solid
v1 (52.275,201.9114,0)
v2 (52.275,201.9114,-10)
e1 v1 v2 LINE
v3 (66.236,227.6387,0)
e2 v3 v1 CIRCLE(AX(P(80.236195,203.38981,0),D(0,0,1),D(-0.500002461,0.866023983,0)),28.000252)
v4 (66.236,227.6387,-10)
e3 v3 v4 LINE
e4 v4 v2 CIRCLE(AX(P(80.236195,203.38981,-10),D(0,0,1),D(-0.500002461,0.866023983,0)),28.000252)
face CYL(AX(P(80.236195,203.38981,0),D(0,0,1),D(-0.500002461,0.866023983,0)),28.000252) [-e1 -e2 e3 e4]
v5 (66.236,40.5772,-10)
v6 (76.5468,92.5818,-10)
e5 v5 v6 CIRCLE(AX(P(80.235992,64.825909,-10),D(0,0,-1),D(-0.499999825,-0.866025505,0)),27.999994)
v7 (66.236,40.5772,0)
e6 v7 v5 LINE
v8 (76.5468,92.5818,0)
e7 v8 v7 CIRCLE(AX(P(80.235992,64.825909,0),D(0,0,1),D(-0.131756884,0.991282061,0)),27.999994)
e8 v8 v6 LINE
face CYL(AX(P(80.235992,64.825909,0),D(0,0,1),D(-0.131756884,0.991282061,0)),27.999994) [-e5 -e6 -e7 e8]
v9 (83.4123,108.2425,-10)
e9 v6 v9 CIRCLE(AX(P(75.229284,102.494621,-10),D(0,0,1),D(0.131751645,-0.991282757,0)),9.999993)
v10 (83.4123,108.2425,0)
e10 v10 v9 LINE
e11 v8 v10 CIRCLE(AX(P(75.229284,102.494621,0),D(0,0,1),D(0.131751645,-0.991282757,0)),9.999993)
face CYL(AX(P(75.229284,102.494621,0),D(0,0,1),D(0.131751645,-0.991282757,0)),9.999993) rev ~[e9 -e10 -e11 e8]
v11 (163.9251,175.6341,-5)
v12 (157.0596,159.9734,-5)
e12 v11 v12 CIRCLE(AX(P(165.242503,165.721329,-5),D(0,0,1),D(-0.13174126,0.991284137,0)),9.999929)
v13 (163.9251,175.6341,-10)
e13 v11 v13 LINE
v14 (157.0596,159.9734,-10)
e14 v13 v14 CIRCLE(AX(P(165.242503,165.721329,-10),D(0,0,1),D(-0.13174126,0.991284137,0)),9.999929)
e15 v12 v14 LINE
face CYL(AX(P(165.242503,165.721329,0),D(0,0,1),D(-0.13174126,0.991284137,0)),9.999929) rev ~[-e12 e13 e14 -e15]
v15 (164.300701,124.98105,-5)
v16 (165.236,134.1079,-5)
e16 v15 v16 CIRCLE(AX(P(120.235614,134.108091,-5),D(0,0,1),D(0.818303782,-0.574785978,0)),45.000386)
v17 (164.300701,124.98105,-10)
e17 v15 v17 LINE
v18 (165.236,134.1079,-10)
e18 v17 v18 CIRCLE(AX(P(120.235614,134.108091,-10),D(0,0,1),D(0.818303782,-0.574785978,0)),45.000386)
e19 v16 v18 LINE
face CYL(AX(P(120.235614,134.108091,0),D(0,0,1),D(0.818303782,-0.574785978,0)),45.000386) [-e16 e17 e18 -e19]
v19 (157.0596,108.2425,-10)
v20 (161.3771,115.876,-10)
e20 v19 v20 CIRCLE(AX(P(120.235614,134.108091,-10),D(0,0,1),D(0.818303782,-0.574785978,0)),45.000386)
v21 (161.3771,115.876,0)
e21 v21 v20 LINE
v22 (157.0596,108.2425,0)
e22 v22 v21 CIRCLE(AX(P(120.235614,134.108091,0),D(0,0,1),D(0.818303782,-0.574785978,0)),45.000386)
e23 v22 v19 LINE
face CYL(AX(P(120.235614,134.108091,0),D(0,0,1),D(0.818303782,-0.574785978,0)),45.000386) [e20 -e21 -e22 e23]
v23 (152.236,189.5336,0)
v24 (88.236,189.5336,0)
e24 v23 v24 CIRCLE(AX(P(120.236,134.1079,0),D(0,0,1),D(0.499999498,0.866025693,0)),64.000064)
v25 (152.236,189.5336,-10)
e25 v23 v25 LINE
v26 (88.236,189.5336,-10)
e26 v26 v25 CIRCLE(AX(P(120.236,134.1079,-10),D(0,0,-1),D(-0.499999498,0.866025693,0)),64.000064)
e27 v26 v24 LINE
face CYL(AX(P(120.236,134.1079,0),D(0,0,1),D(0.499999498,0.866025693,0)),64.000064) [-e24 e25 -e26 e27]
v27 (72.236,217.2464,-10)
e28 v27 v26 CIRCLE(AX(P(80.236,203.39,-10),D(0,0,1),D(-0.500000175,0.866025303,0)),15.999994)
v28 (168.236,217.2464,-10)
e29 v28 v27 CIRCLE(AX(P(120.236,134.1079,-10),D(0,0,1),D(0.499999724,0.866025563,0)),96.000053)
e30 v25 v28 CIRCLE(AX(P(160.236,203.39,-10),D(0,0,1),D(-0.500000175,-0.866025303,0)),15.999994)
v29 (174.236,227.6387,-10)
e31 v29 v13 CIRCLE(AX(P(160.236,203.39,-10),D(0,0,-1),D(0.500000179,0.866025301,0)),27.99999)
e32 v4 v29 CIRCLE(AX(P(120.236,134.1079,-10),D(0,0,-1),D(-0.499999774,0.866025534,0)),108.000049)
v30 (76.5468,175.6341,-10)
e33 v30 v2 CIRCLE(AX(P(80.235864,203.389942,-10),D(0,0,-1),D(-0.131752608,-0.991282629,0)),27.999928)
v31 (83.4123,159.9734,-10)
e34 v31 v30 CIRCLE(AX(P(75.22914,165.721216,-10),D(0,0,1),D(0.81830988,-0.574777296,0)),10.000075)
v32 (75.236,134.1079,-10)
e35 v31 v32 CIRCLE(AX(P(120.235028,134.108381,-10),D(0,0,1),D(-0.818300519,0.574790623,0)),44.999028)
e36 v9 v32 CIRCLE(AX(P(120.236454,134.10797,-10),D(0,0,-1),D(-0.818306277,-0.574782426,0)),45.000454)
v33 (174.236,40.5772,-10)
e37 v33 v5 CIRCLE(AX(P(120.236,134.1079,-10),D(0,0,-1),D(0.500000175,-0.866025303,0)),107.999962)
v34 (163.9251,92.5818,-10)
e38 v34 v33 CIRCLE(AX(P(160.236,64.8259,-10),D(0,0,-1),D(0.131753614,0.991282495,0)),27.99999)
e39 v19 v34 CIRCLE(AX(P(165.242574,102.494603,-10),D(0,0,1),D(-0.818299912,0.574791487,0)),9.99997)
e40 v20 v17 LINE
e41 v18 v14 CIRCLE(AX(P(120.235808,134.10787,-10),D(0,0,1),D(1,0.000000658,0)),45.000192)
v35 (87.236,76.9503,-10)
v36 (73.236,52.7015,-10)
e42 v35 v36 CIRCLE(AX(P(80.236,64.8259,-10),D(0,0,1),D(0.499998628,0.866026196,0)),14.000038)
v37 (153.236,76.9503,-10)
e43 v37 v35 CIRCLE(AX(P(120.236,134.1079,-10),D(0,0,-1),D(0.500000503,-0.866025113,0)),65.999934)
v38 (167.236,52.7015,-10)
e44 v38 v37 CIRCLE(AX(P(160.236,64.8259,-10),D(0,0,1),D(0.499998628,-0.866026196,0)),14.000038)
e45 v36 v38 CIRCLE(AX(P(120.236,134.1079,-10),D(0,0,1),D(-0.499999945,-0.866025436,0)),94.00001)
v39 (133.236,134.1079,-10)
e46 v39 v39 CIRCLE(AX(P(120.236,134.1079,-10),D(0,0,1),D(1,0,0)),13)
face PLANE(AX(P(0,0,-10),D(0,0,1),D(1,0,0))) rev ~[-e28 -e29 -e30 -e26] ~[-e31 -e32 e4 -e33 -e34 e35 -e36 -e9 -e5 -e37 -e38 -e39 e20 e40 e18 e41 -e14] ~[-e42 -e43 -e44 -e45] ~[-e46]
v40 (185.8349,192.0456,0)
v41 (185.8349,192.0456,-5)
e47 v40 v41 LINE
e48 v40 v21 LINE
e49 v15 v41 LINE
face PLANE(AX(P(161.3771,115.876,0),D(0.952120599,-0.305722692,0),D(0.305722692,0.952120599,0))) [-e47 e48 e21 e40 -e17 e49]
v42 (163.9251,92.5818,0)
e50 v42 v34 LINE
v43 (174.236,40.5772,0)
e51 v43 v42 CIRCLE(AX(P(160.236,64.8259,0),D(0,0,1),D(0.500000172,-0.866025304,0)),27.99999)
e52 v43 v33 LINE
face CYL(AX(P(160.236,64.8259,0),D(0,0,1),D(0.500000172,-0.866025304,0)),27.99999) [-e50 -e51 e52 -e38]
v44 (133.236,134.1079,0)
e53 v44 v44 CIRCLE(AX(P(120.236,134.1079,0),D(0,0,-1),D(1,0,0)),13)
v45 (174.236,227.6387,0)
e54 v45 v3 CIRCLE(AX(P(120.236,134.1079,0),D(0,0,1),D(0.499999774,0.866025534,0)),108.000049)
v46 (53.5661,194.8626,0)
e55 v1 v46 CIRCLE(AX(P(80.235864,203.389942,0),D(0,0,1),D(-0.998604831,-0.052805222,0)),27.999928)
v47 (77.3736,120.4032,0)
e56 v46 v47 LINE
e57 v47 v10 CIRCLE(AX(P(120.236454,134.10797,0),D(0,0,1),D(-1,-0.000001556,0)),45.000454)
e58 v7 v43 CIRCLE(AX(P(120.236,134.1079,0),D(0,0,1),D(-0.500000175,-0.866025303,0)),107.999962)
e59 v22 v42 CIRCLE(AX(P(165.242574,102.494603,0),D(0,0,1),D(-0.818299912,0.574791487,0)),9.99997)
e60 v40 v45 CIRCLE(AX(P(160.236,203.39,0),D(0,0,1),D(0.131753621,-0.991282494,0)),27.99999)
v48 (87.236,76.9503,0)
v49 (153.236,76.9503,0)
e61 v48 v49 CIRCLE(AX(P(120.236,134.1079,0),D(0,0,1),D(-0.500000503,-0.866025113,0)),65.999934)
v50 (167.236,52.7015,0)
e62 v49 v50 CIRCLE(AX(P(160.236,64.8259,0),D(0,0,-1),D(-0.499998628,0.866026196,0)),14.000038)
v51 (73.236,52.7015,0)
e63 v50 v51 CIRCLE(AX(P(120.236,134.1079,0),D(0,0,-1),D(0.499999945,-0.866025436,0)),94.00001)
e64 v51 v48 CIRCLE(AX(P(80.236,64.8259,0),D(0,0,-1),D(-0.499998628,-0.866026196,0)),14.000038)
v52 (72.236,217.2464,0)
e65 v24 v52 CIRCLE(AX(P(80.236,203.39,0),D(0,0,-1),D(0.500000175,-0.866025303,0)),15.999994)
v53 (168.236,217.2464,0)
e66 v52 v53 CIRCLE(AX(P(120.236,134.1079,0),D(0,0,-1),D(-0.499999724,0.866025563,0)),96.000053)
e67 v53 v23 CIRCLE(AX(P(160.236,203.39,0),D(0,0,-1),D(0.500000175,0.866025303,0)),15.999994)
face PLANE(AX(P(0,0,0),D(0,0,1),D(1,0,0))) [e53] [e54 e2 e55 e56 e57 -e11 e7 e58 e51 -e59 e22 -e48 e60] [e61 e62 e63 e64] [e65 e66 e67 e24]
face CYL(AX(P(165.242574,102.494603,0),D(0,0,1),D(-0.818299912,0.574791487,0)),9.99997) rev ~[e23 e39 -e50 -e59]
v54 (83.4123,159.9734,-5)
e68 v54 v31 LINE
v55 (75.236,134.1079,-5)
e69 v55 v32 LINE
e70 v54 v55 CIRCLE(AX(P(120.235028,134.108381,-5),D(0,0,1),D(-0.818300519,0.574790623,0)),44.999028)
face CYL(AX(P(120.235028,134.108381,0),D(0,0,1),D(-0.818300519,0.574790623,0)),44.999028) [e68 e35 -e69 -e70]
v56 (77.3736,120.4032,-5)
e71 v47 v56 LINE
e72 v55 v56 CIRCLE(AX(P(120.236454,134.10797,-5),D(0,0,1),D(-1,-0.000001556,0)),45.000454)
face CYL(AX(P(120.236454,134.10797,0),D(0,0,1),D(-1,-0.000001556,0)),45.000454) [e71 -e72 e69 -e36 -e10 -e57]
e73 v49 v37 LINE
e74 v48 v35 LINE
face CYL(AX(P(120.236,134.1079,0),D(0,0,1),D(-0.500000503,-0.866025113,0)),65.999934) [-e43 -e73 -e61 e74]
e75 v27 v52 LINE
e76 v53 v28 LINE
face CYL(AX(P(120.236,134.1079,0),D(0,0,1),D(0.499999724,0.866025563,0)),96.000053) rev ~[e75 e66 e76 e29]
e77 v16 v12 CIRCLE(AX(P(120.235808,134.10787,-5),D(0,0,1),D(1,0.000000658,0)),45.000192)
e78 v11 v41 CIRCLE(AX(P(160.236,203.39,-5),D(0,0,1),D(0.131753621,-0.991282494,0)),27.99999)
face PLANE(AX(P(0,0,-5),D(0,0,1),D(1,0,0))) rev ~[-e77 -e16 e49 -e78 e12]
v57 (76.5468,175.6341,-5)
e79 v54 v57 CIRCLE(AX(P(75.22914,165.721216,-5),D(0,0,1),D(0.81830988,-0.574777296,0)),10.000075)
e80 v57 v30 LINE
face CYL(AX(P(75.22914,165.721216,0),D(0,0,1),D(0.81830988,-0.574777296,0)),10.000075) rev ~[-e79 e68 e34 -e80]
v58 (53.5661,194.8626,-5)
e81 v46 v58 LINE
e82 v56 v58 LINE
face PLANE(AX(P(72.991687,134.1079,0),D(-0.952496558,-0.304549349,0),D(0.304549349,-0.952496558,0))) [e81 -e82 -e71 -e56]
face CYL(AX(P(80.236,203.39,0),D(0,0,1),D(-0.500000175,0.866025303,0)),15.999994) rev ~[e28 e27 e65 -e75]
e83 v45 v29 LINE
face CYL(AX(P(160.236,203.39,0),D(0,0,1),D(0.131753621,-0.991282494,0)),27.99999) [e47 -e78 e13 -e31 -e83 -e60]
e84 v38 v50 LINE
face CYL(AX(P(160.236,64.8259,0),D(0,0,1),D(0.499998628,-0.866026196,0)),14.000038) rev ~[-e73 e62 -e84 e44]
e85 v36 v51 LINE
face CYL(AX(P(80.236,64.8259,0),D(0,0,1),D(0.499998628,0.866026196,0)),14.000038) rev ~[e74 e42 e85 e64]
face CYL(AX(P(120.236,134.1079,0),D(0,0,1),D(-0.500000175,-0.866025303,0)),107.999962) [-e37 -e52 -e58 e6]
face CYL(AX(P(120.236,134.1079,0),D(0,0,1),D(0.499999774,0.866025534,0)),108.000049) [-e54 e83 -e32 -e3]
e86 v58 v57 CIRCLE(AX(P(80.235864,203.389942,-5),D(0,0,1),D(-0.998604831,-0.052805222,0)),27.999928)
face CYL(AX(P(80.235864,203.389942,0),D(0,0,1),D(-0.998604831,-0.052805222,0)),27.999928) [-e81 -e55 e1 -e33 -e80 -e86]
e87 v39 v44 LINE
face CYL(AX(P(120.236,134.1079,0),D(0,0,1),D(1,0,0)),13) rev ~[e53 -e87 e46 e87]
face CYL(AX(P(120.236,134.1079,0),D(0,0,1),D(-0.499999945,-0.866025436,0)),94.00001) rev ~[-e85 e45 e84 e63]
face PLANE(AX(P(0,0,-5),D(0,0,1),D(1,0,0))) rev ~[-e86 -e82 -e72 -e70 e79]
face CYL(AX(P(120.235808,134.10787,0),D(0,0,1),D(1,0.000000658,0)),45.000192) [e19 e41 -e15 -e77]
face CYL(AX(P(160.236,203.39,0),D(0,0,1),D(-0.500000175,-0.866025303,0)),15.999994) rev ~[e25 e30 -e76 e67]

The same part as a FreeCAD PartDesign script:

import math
import FreeCAD as App
import Part
import Sketcher
from FreeCAD import Vector
Q = App.Units.Quantity

doc = App.newDocument("Part")
body = doc.addObject("PartDesign::Body", "Body")

# Sketch on XY plane
sketch1 = body.newObject("Sketcher::SketchObject", "Sketch")
sketch1.AttachmentSupport = (doc.getObject("XY_Plane"), [""])
sketch1.MapMode = "FlatFace"
sketch1.addGeometry([
    Part.LineSegment(Vector(161, 116, 0), Vector(186, 192, 0)),  # 0
    Part.ArcOfCircle(Part.Circle(Vector(160, 203, 0), Vector(0, 0, 1), 28), math.radians(-24), math.radians(60)),  # 1
    Part.ArcOfCircle(Part.Circle(Vector(120, 134, 0), Vector(0, 0, 1), 108), math.radians(60), math.radians(120)),  # 2
    Part.ArcOfCircle(Part.Circle(Vector(80, 203, 0), Vector(0, 0, 1), 28), math.radians(120), math.radians(183)),  # 3
    Part.ArcOfCircle(Part.Circle(Vector(80, 203, 0), Vector(0, 0, 1), 28), math.radians(-176.97), math.radians(-162.27)),  # 4
    Part.LineSegment(Vector(54, 195, 0), Vector(77, 120, 0)),  # 5
    Part.ArcOfCircle(Part.Circle(Vector(120, 134, 0), Vector(0, 0, 1), 45), math.radians(-162.27), math.radians(-144.92)),  # 6
    Part.ArcOfCircle(Part.Circle(Vector(75, 102, 0), Vector(0, 0, 1), 10), math.radians(-82), math.radians(35)),  # 7
    Part.ArcOfCircle(Part.Circle(Vector(80, 65, 0), Vector(0, 0, 1), 28), math.radians(98), math.radians(240)),  # 8
    Part.ArcOfCircle(Part.Circle(Vector(120, 134, 0), Vector(0, 0, 1), 108), math.radians(-120), math.radians(-60)),  # 9
    Part.ArcOfCircle(Part.Circle(Vector(160, 65, 0), Vector(0, 0, 1), 28), math.radians(-60), math.radians(82)),  # 10
    Part.ArcOfCircle(Part.Circle(Vector(165, 102, 0), Vector(0, 0, 1), 10), math.radians(145), math.radians(262)),  # 11
    Part.ArcOfCircle(Part.Circle(Vector(120, 134, 0), Vector(0, 0, 1), 45), math.radians(-35.08), math.radians(-23.9)),  # 12
    Part.ArcOfCircle(Part.Circle(Vector(160, 65, 0), Vector(0, 0, 1), 14), math.radians(-60), math.radians(120)),  # 13
    Part.ArcOfCircle(Part.Circle(Vector(120, 134, 0), Vector(0, 0, 1), 94), math.radians(-120), math.radians(-60)),  # 14
    Part.ArcOfCircle(Part.Circle(Vector(80, 65, 0), Vector(0, 0, 1), 14), math.radians(60), math.radians(240)),  # 15
    Part.ArcOfCircle(Part.Circle(Vector(120, 134, 0), Vector(0, 0, 1), 66), math.radians(-120), math.radians(-60)),  # 16
    Part.Circle(Vector(120, 134, 0), Vector(0, 0, 1), 13),  # 17
    Part.ArcOfCircle(Part.Circle(Vector(120, 134, 0), Vector(0, 0, 1), 64), math.radians(60), math.radians(120)),  # 18
    Part.ArcOfCircle(Part.Circle(Vector(80, 203, 0), Vector(0, 0, 1), 16), math.radians(120), math.radians(300)),  # 19
    Part.ArcOfCircle(Part.Circle(Vector(120, 134, 0), Vector(0, 0, 1), 96), math.radians(60), math.radians(120)),  # 20
    Part.ArcOfCircle(Part.Circle(Vector(160, 203, 0), Vector(0, 0, 1), 16), math.radians(-120), math.radians(60)),  # 21
], False)
sketch1.addConstraint([
    Sketcher.Constraint("Coincident", 0, 2, 1, 1),
    Sketcher.Constraint("Tangent", 1, 2, 2, 1),
    Sketcher.Constraint("Tangent", 2, 2, 3, 1),
    Sketcher.Constraint("Tangent", 3, 2, 4, 1),
    Sketcher.Constraint("Tangent", 4, 2, 5, 1),
    Sketcher.Constraint("Tangent", 5, 2, 6, 1),
    Sketcher.Constraint("Tangent", 6, 2, 7, 2),
    Sketcher.Constraint("Tangent", 7, 1, 8, 1),
    Sketcher.Constraint("Tangent", 8, 2, 9, 1),
    Sketcher.Constraint("Tangent", 9, 2, 10, 1),
    Sketcher.Constraint("Tangent", 10, 2, 11, 2),
    Sketcher.Constraint("Tangent", 11, 1, 12, 1),
    Sketcher.Constraint("Coincident", 12, 2, 0, 1),
    Sketcher.Constraint("Tangent", 13, 1, 14, 2),
    Sketcher.Constraint("Tangent", 14, 1, 15, 2),
    Sketcher.Constraint("Tangent", 15, 1, 16, 1),
    Sketcher.Constraint("Tangent", 16, 2, 13, 2),
    Sketcher.Constraint("Tangent", 18, 2, 19, 2),
    Sketcher.Constraint("Tangent", 19, 1, 20, 2),
    Sketcher.Constraint("Tangent", 20, 1, 21, 2),
    Sketcher.Constraint("Tangent", 21, 1, 18, 1),
    Sketcher.Constraint("Coincident", 6, 3, 2, 3),
    Sketcher.Constraint("Coincident", 9, 3, 2, 3),
    Sketcher.Constraint("Coincident", 12, 3, 2, 3),
    Sketcher.Constraint("Coincident", 13, 3, 10, 3),
    Sketcher.Constraint("Coincident", 14, 3, 2, 3),
    Sketcher.Constraint("Coincident", 15, 3, 8, 3),
    Sketcher.Constraint("Coincident", 16, 3, 2, 3),
    Sketcher.Constraint("Coincident", 17, 3, 2, 3),
    Sketcher.Constraint("Coincident", 18, 3, 2, 3),
    Sketcher.Constraint("Coincident", 19, 3, 3, 3),
    Sketcher.Constraint("Coincident", 20, 3, 2, 3),
    Sketcher.Constraint("Coincident", 21, 3, 1, 3),
    Sketcher.Constraint("Equal", 3, 4),
    Sketcher.Constraint("Equal", 4, 8),
    Sketcher.Constraint("Equal", 2, 9),
    Sketcher.Constraint("Equal", 7, 11),
    Sketcher.Constraint("Equal", 6, 12),
    Sketcher.Constraint("Horizontal", 1, 3, 3, 3),
    Sketcher.Constraint("Horizontal", 8, 3, 10, 3),
    Sketcher.Constraint("Vertical", 4, 3, 8, 3),
    Sketcher.Constraint("Diameter", 17, Q("26 mm")),
    Sketcher.Constraint("Radius", 1, Q("28 mm")),
    Sketcher.Constraint("Radius", 2, Q("108 mm")),
    Sketcher.Constraint("Radius", 6, Q("45 mm")),
    Sketcher.Constraint("Radius", 7, Q("10 mm")),
    Sketcher.Constraint("Radius", 13, Q("14 mm")),
    Sketcher.Constraint("Radius", 19, Q("16 mm")),
    Sketcher.Constraint("DistanceX", 1, 3, 1, 2, Q("14 mm")),
    Sketcher.Constraint("Distance", 0, Q("80 mm")),
    Sketcher.Constraint("DistanceY", -1, 1, 1, 3, Q("203.39 mm")),
    Sketcher.Constraint("DistanceX", -1, 1, 1, 3, Q("160.236 mm")),
    Sketcher.Constraint("DistanceX", -1, 1, 0, 2, Q("185.835 mm")),
    Sketcher.Constraint("DistanceX", -1, 1, 3, 2, Q("52.275 mm")),
])
pad1 = body.newObject("PartDesign::Pad", "Pad")
pad1.Profile = sketch1
pad1.Length = 5
pad1.Reversed = True

# Sketch on XY plane
sketch2 = body.newObject("Sketcher::SketchObject", "Sketch001")
sketch2.AttachmentSupport = (doc.getObject("XY_Plane"), [""])
sketch2.MapMode = "FlatFace"
sketch2.addGeometry([
    Part.ArcOfCircle(Part.Circle(Vector(120, 134, 0), Vector(0, 0, 1), 45), math.radians(-11.7), math.radians(0)),  # 0
    Part.ArcOfCircle(Part.Circle(Vector(120, 134, 0), Vector(0, 0, 1), 45), math.radians(0), math.radians(35)),  # 1
    Part.ArcOfCircle(Part.Circle(Vector(165, 166, 0), Vector(0, 0, 1), 10), math.radians(98), math.radians(215)),  # 2
    Part.ArcOfCircle(Part.Circle(Vector(160, 203, 0), Vector(0, 0, 1), 28), math.radians(-82), math.radians(60)),  # 3
    Part.ArcOfCircle(Part.Circle(Vector(120, 134, 0), Vector(0, 0, 1), 108), math.radians(60), math.radians(120)),  # 4
    Part.ArcOfCircle(Part.Circle(Vector(80, 203, 0), Vector(0, 0, 1), 28), math.radians(120), math.radians(183)),  # 5
    Part.ArcOfCircle(Part.Circle(Vector(80, 203, 0), Vector(0, 0, 1), 28), math.radians(-177), math.radians(-98)),  # 6
    Part.ArcOfCircle(Part.Circle(Vector(75, 166, 0), Vector(0, 0, 1), 10), math.radians(-35), math.radians(82)),  # 7
    Part.ArcOfCircle(Part.Circle(Vector(120, 134, 0), Vector(0, 0, 1), 45), math.radians(145), math.radians(180)),  # 8
    Part.ArcOfCircle(Part.Circle(Vector(120, 134, 0), Vector(0, 0, 1), 45), math.radians(180), math.radians(215)),  # 9
    Part.ArcOfCircle(Part.Circle(Vector(75, 102, 0), Vector(0, 0, 1), 10), math.radians(-82), math.radians(35)),  # 10
    Part.ArcOfCircle(Part.Circle(Vector(80, 65, 0), Vector(0, 0, 1), 28), math.radians(98), math.radians(240)),  # 11
    Part.ArcOfCircle(Part.Circle(Vector(120, 134, 0), Vector(0, 0, 1), 108), math.radians(-120), math.radians(-60)),  # 12
    Part.ArcOfCircle(Part.Circle(Vector(160, 65, 0), Vector(0, 0, 1), 28), math.radians(-60), math.radians(82)),  # 13
    Part.ArcOfCircle(Part.Circle(Vector(165, 102, 0), Vector(0, 0, 1), 10), math.radians(145), math.radians(262)),  # 14
    Part.ArcOfCircle(Part.Circle(Vector(120, 134, 0), Vector(0, 0, 1), 45), math.radians(-35.08), math.radians(-23.9)),  # 15
    Part.LineSegment(Vector(161, 116, 0), Vector(164, 125, 0)),  # 16
    Part.ArcOfCircle(Part.Circle(Vector(160, 65, 0), Vector(0, 0, 1), 14), math.radians(-60), math.radians(120)),  # 17
    Part.ArcOfCircle(Part.Circle(Vector(120, 134, 0), Vector(0, 0, 1), 94), math.radians(-120), math.radians(-60)),  # 18
    Part.ArcOfCircle(Part.Circle(Vector(80, 65, 0), Vector(0, 0, 1), 14), math.radians(60), math.radians(240)),  # 19
    Part.ArcOfCircle(Part.Circle(Vector(120, 134, 0), Vector(0, 0, 1), 66), math.radians(-120), math.radians(-60)),  # 20
    Part.Circle(Vector(120, 134, 0), Vector(0, 0, 1), 13),  # 21
    Part.ArcOfCircle(Part.Circle(Vector(120, 134, 0), Vector(0, 0, 1), 64), math.radians(60), math.radians(120)),  # 22
    Part.ArcOfCircle(Part.Circle(Vector(80, 203, 0), Vector(0, 0, 1), 16), math.radians(120), math.radians(300)),  # 23
    Part.ArcOfCircle(Part.Circle(Vector(120, 134, 0), Vector(0, 0, 1), 96), math.radians(60), math.radians(120)),  # 24
    Part.ArcOfCircle(Part.Circle(Vector(160, 203, 0), Vector(0, 0, 1), 16), math.radians(-120), math.radians(60)),  # 25
], False)
sketch2.addConstraint([
    Sketcher.Constraint("Tangent", 0, 2, 1, 1),
    Sketcher.Constraint("Tangent", 1, 2, 2, 2),
    Sketcher.Constraint("Tangent", 2, 1, 3, 1),
    Sketcher.Constraint("Tangent", 3, 2, 4, 1),
    Sketcher.Constraint("Tangent", 4, 2, 5, 1),
    Sketcher.Constraint("Tangent", 5, 2, 6, 1),
    Sketcher.Constraint("Tangent", 6, 2, 7, 2),
    Sketcher.Constraint("Tangent", 7, 1, 8, 1),
    Sketcher.Constraint("Tangent", 8, 2, 9, 1),
    Sketcher.Constraint("Tangent", 9, 2, 10, 2),
    Sketcher.Constraint("Tangent", 10, 1, 11, 1),
    Sketcher.Constraint("Tangent", 11, 2, 12, 1),
    Sketcher.Constraint("Tangent", 12, 2, 13, 1),
    Sketcher.Constraint("Tangent", 13, 2, 14, 2),
    Sketcher.Constraint("Tangent", 14, 1, 15, 1),
    Sketcher.Constraint("Coincident", 15, 2, 16, 1),
    Sketcher.Constraint("Coincident", 16, 2, 0, 1),
    Sketcher.Constraint("Tangent", 17, 1, 18, 2),
    Sketcher.Constraint("Tangent", 18, 1, 19, 2),
    Sketcher.Constraint("Tangent", 19, 1, 20, 1),
    Sketcher.Constraint("Tangent", 20, 2, 17, 2),
    Sketcher.Constraint("Tangent", 22, 2, 23, 2),
    Sketcher.Constraint("Tangent", 23, 1, 24, 2),
    Sketcher.Constraint("Tangent", 24, 1, 25, 2),
    Sketcher.Constraint("Tangent", 25, 1, 22, 1),
    Sketcher.Constraint("Coincident", 4, 3, 0, 3),
    Sketcher.Constraint("Coincident", 9, 3, 0, 3),
    Sketcher.Constraint("Coincident", 12, 3, 0, 3),
    Sketcher.Constraint("Coincident", 15, 3, 0, 3),
    Sketcher.Constraint("Coincident", 17, 3, 13, 3),
    Sketcher.Constraint("Coincident", 18, 3, 0, 3),
    Sketcher.Constraint("Coincident", 19, 3, 11, 3),
    Sketcher.Constraint("Coincident", 20, 3, 0, 3),
    Sketcher.Constraint("Coincident", 21, 3, 0, 3),
    Sketcher.Constraint("Coincident", 22, 3, 0, 3),
    Sketcher.Constraint("Coincident", 23, 3, 5, 3),
    Sketcher.Constraint("Coincident", 24, 3, 0, 3),
    Sketcher.Constraint("Coincident", 25, 3, 3, 3),
    Sketcher.Constraint("Equal", 0, 1),
    Sketcher.Constraint("Equal", 5, 6),
    Sketcher.Constraint("Equal", 2, 7),
    Sketcher.Constraint("Equal", 1, 9),
    Sketcher.Constraint("Equal", 7, 10),
    Sketcher.Constraint("Equal", 6, 11),
    Sketcher.Constraint("Equal", 4, 12),
    Sketcher.Constraint("Equal", 10, 14),
    Sketcher.Constraint("Equal", 9, 15),
    Sketcher.Constraint("Horizontal", 3, 3, 5, 3),
    Sketcher.Constraint("Horizontal", 2, 3, 7, 3),
    Sketcher.Constraint("Horizontal", 11, 3, 13, 3),
    Sketcher.Constraint("Horizontal", 24, 3, 0, 2),
    Sketcher.Constraint("Horizontal", 0, 2, 8, 2),
    Sketcher.Constraint("Vertical", 7, 3, 10, 3),
    Sketcher.Constraint("Diameter", 21, Q("26 mm")),
    Sketcher.Constraint("Radius", 0, Q("45 mm")),
    Sketcher.Constraint("Radius", 2, Q("10 mm")),
    Sketcher.Constraint("Radius", 3, Q("28 mm")),
    Sketcher.Constraint("Radius", 4, Q("108 mm")),
    Sketcher.Constraint("Radius", 17, Q("14 mm")),
    Sketcher.Constraint("Radius", 23, Q("16 mm")),
    Sketcher.Constraint("DistanceX", 3, 3, 3, 2, Q("14 mm")),
    Sketcher.Constraint("DistanceY", -1, 1, 3, 3, Q("203.39 mm")),
    Sketcher.Constraint("Distance", 16, Q("9.563 mm")),
    Sketcher.Constraint("DistanceX", -1, 1, 0, 3, Q("120.236 mm")),
    Sketcher.Constraint("DistanceX", -1, 1, 5, 2, Q("52.275 mm")),
    Sketcher.Constraint("DistanceY", -1, 1, 15, 2, Q("115.876 mm")),
])
pad2 = body.newObject("PartDesign::Pad", "Pad001")
pad2.Profile = sketch2
pad2.Length = 10
pad2.Reversed = True

doc.recompute()
